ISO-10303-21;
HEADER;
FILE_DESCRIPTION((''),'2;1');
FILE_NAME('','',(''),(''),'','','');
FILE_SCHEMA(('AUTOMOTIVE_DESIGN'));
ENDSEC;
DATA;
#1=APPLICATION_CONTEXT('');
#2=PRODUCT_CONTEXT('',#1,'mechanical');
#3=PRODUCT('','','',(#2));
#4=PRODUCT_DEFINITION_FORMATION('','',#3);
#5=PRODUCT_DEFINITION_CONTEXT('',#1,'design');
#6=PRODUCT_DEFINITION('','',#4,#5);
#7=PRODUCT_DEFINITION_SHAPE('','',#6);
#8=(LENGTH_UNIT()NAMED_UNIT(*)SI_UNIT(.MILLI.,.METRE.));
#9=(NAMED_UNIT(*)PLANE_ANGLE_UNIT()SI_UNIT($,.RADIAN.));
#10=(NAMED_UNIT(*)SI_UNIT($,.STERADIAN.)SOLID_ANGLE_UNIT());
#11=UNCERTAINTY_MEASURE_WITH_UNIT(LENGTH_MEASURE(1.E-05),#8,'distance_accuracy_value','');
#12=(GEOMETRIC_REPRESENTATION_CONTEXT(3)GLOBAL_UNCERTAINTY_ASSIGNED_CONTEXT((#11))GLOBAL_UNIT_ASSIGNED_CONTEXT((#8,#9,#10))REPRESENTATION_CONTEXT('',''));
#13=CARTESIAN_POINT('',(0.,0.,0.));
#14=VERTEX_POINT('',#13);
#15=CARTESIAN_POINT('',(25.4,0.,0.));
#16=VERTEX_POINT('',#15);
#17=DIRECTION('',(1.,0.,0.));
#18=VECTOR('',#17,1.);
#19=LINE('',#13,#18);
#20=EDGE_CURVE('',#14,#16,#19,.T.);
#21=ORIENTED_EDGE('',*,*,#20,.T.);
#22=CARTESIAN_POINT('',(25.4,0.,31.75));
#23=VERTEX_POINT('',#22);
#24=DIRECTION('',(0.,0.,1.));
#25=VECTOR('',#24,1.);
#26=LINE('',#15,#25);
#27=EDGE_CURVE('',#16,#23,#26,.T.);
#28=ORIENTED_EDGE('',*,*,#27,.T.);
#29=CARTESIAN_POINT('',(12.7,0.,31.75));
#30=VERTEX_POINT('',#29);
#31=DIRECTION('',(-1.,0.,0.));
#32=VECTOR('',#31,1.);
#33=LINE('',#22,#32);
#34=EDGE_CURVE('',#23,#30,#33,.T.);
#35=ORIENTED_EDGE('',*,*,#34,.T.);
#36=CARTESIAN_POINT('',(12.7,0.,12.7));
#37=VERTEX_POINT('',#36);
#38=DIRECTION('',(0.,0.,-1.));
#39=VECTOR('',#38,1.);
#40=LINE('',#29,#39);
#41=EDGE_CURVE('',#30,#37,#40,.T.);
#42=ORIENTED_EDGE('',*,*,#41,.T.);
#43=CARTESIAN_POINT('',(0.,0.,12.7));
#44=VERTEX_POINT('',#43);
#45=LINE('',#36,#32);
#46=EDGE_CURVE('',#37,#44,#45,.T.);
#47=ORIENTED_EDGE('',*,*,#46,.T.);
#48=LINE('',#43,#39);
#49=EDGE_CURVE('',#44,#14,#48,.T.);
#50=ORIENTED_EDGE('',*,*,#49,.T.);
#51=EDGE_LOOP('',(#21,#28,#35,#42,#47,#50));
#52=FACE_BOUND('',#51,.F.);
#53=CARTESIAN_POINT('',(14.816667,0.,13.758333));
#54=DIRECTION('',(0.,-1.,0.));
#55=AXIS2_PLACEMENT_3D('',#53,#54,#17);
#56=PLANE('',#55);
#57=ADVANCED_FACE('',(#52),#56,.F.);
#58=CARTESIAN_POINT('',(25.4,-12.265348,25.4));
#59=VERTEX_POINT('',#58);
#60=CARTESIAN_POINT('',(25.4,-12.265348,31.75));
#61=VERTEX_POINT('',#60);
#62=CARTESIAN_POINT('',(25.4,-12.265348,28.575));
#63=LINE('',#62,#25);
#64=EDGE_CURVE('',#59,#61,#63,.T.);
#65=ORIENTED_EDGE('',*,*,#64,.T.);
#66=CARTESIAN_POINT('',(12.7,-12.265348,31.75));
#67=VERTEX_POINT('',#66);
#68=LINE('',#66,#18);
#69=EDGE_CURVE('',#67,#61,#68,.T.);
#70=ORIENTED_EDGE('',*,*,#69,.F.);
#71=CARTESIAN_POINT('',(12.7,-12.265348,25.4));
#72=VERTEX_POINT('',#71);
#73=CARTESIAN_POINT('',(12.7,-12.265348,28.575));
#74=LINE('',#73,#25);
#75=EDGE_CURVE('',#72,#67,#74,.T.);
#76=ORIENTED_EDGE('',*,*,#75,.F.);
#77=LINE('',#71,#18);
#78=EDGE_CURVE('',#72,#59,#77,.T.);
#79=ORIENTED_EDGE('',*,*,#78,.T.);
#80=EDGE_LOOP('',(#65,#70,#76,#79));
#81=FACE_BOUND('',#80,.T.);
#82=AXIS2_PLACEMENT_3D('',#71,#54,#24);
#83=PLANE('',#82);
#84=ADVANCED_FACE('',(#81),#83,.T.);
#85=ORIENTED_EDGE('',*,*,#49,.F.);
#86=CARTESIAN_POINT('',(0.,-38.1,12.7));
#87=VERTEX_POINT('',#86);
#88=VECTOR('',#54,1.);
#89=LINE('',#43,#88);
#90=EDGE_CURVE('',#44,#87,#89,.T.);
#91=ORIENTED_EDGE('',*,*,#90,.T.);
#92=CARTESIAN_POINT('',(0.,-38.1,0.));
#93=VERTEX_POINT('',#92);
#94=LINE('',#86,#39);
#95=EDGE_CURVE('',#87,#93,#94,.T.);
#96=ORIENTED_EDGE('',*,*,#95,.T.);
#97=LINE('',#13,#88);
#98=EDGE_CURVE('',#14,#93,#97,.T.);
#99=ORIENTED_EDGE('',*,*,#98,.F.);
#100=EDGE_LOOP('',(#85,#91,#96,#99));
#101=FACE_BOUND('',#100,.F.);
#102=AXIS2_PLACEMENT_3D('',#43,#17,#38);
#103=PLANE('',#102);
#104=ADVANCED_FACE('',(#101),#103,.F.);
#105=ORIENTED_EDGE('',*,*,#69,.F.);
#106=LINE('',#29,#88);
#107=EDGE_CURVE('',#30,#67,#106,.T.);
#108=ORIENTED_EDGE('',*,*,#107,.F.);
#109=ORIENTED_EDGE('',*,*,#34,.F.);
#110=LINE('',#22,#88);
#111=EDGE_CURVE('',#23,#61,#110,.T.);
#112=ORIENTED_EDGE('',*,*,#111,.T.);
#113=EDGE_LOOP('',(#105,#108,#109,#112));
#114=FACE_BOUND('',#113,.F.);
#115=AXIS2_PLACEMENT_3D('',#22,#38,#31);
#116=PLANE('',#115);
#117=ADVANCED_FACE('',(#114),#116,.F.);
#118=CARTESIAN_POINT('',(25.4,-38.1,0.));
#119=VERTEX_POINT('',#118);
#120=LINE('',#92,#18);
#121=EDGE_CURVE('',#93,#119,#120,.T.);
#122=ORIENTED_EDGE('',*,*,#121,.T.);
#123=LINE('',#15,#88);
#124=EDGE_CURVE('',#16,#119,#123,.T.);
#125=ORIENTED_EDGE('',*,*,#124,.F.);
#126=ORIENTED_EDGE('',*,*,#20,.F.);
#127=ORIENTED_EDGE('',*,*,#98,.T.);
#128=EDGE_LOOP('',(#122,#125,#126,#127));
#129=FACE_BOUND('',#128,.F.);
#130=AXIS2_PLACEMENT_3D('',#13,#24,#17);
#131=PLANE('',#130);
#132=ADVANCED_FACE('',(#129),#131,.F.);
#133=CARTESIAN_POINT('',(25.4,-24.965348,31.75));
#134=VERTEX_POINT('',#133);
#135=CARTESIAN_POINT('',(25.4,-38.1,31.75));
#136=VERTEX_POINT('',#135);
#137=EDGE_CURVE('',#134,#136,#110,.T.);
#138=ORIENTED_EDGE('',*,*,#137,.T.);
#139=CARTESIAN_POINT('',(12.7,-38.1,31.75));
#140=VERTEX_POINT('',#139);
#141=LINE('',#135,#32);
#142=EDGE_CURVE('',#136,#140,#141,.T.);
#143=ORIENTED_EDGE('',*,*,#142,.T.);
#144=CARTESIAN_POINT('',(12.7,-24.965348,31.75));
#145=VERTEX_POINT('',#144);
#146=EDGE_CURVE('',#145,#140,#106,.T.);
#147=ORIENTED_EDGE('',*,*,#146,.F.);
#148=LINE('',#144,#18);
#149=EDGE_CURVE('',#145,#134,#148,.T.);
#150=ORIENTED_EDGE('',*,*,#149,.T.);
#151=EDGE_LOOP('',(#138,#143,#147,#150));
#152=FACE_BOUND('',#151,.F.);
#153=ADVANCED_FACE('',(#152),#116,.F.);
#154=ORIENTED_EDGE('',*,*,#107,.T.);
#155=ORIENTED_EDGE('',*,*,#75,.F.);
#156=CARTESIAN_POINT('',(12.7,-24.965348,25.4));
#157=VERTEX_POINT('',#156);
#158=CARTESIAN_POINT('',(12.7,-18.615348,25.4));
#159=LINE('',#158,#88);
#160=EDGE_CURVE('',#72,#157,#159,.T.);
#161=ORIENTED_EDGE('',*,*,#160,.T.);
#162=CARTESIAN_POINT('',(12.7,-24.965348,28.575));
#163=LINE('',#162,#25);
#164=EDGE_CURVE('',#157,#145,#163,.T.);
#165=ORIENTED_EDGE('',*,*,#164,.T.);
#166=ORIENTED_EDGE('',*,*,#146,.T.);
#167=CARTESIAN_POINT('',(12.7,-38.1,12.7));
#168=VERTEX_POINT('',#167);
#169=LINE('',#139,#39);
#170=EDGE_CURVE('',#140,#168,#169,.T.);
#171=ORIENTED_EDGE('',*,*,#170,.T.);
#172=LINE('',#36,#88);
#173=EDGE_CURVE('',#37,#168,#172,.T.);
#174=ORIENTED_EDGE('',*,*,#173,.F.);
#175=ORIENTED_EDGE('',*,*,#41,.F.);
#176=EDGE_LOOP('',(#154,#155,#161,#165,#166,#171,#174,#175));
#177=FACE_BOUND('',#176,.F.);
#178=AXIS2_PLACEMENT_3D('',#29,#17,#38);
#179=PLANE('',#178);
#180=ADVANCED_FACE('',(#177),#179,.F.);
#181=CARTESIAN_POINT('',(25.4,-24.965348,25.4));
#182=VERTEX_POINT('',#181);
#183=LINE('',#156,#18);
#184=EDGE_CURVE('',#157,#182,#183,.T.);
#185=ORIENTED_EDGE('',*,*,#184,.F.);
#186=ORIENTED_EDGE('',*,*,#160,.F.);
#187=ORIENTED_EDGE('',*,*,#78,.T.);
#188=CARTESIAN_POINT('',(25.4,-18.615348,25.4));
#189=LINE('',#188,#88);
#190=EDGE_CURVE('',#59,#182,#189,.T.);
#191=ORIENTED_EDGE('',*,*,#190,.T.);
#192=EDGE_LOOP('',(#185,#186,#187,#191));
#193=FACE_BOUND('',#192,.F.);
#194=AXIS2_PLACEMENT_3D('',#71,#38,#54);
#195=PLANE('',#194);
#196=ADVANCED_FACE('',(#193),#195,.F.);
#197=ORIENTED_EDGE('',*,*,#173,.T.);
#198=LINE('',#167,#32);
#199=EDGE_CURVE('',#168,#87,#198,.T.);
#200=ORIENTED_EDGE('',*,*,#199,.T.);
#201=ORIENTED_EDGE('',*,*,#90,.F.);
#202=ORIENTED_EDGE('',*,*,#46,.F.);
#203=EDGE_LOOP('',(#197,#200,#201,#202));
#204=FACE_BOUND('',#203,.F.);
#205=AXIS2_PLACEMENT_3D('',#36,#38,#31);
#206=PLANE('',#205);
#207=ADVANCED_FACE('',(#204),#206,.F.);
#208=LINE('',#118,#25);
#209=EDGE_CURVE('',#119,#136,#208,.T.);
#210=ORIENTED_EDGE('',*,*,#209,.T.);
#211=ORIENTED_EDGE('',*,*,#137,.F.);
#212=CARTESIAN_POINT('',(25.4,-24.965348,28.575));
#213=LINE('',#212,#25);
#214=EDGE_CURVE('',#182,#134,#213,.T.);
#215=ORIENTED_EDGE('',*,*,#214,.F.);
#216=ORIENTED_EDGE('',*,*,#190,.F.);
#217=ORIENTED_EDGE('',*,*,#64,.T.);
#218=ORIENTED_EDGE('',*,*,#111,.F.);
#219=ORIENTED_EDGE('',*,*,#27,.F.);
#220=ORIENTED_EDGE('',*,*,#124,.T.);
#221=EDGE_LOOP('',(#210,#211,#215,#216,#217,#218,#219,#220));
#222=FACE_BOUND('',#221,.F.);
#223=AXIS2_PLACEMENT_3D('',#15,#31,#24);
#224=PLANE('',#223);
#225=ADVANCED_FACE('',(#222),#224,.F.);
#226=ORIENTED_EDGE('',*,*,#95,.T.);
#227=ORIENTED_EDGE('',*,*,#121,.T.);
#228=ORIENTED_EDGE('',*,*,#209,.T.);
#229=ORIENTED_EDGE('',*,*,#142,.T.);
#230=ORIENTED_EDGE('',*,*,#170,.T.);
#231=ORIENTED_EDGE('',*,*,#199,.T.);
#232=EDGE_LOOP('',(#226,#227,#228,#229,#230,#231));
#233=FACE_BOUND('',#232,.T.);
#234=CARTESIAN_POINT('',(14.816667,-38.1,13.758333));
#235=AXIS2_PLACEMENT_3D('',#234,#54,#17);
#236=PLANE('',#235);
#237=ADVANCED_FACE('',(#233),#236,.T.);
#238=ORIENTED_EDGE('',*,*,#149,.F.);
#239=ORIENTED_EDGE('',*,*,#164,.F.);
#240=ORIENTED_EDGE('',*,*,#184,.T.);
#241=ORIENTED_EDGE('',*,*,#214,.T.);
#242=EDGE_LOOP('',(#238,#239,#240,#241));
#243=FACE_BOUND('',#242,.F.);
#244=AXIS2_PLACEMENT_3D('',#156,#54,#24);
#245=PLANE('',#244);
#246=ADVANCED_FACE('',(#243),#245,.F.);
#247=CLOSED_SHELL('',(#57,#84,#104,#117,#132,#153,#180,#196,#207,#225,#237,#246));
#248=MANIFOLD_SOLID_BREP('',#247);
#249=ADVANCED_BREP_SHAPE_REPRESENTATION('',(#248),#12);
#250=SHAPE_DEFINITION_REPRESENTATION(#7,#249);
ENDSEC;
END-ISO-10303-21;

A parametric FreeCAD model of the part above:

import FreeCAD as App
import Part
import Sketcher

V = App.Vector
Q = App.Units.Quantity


def add_polygon(sketch, points):
    """Adds a closed chain of lines whose ends are joined by coincident constraints."""
    first, n = sketch.GeometryCount, len(points)
    for a, b in zip(points, points[1:] + points[:1]):
        sketch.addGeometry(Part.LineSegment(App.Vector(*a, 0), App.Vector(*b, 0)), False)
    for i in range(n):
        sketch.addConstraint(Sketcher.Constraint("Coincident", first + i, 2, first + (i + 1) % n, 1))

doc = App.newDocument("Part")
params = doc.addObject("Spreadsheet::Sheet", "Params")
for row, (alias, value) in enumerate([
    ("sketch1_width", "1 in"),
    ("sketch1_height", "1.25 in"),
    ("pad1_length", "1.5 in"),
    ("sketch2_width", "0.5 in"),
    ("sketch2_height", "0.25 in"),
    ("pocket1_length", "0.5 in"),
], start=1):
    params.set(f"A{row}", alias)
    params.set(f"B{row}", "=" + value)
    params.setAlias(f"B{row}", alias)

body = doc.addObject("PartDesign::Body", "Body")

sketch1 = doc.addObject("Sketcher::SketchObject", "Sketch")
body.addObject(sketch1)
sketch1.AttachmentSupport = (doc.XZ_Plane, [""])
sketch1.MapMode = "FlatFace"
add_polygon(sketch1, [(0, 12.7), (0, 0), (25.4, 0), (25.4, 31.75), (12.7, 31.75), (12.7, 12.7)])
sketch1.addConstraint(Sketcher.Constraint("Vertical", 0))
sketch1.addConstraint(Sketcher.Constraint("Horizontal", 1))
sketch1.addConstraint(Sketcher.Constraint("Vertical", 2))
sketch1.addConstraint(Sketcher.Constraint("Horizontal", 3))
sketch1.addConstraint(Sketcher.Constraint("Vertical", 4))
sketch1.addConstraint(Sketcher.Constraint("Horizontal", 5))
sketch1.addConstraint(Sketcher.Constraint("Coincident", 0, 2, -1, 1))
sketch1.addConstraint(Sketcher.Constraint("Equal", 3, 5))
sketch1.addConstraint(Sketcher.Constraint("Equal", 5, 0))
sketch1.addConstraint(Sketcher.Constraint("DistanceX", 1, 1, 1, 2, Q("1 in")))
sketch1.addConstraint(Sketcher.Constraint("DistanceY", 2, 1, 2, 2, Q("1.25 in")))
sketch1.setExpression("Constraints[15]", "Params.sketch1_width")
sketch1.setExpression("Constraints[16]", "Params.sketch1_height")
pad1 = doc.addObject("PartDesign::Pad", "Pad")
body.addObject(pad1)
pad1.Profile = sketch1
pad1.setExpression("Length", "Params.pad1_length")

sketch2 = doc.addObject("Sketcher::SketchObject", "Sketch001")
body.addObject(sketch2)
sketch2.AttachmentSupport = (doc.YZ_Plane, [""])
sketch2.MapMode = "FlatFace"
sketch2.AttachmentOffset = App.Placement(V(0, 0, 0.5 * 25.4), App.Rotation())
add_polygon(sketch2, [(-12.265348, 31.75), (-12.265348, 25.4), (-24.965348, 25.4), (-24.965348, 31.75)])
sketch2.addConstraint(Sketcher.Constraint("Vertical", 0))
sketch2.addConstraint(Sketcher.Constraint("Horizontal", 1))
sketch2.addConstraint(Sketcher.Constraint("Vertical", 2))
sketch2.addConstraint(Sketcher.Constraint("Horizontal", 3))
sketch2.addConstraint(Sketcher.Constraint("DistanceX", 1, 2, 1, 1, Q("0.5 in")))
sketch2.addConstraint(Sketcher.Constraint("DistanceY", -1, 1, 0, 2, Q("1 in")))
sketch2.addConstraint(Sketcher.Constraint("DistanceY", 0, 2, 0, 1, Q("0.25 in")))
sketch2.addConstraint(Sketcher.Constraint("DistanceX", 0, 2, -1, 1, Q("12.265348 mm")))
sketch2.setExpression("Constraints[8]", "Params.sketch2_width")
sketch2.setExpression("Constraints[10]", "Params.sketch2_height")
pocket1 = doc.addObject("PartDesign::Pocket", "Pocket")
body.addObject(pocket1)
pocket1.Profile = sketch2
pocket1.setExpression("Length", "Params.pocket1_length")
pocket1.Reversed = True

doc.recompute()
